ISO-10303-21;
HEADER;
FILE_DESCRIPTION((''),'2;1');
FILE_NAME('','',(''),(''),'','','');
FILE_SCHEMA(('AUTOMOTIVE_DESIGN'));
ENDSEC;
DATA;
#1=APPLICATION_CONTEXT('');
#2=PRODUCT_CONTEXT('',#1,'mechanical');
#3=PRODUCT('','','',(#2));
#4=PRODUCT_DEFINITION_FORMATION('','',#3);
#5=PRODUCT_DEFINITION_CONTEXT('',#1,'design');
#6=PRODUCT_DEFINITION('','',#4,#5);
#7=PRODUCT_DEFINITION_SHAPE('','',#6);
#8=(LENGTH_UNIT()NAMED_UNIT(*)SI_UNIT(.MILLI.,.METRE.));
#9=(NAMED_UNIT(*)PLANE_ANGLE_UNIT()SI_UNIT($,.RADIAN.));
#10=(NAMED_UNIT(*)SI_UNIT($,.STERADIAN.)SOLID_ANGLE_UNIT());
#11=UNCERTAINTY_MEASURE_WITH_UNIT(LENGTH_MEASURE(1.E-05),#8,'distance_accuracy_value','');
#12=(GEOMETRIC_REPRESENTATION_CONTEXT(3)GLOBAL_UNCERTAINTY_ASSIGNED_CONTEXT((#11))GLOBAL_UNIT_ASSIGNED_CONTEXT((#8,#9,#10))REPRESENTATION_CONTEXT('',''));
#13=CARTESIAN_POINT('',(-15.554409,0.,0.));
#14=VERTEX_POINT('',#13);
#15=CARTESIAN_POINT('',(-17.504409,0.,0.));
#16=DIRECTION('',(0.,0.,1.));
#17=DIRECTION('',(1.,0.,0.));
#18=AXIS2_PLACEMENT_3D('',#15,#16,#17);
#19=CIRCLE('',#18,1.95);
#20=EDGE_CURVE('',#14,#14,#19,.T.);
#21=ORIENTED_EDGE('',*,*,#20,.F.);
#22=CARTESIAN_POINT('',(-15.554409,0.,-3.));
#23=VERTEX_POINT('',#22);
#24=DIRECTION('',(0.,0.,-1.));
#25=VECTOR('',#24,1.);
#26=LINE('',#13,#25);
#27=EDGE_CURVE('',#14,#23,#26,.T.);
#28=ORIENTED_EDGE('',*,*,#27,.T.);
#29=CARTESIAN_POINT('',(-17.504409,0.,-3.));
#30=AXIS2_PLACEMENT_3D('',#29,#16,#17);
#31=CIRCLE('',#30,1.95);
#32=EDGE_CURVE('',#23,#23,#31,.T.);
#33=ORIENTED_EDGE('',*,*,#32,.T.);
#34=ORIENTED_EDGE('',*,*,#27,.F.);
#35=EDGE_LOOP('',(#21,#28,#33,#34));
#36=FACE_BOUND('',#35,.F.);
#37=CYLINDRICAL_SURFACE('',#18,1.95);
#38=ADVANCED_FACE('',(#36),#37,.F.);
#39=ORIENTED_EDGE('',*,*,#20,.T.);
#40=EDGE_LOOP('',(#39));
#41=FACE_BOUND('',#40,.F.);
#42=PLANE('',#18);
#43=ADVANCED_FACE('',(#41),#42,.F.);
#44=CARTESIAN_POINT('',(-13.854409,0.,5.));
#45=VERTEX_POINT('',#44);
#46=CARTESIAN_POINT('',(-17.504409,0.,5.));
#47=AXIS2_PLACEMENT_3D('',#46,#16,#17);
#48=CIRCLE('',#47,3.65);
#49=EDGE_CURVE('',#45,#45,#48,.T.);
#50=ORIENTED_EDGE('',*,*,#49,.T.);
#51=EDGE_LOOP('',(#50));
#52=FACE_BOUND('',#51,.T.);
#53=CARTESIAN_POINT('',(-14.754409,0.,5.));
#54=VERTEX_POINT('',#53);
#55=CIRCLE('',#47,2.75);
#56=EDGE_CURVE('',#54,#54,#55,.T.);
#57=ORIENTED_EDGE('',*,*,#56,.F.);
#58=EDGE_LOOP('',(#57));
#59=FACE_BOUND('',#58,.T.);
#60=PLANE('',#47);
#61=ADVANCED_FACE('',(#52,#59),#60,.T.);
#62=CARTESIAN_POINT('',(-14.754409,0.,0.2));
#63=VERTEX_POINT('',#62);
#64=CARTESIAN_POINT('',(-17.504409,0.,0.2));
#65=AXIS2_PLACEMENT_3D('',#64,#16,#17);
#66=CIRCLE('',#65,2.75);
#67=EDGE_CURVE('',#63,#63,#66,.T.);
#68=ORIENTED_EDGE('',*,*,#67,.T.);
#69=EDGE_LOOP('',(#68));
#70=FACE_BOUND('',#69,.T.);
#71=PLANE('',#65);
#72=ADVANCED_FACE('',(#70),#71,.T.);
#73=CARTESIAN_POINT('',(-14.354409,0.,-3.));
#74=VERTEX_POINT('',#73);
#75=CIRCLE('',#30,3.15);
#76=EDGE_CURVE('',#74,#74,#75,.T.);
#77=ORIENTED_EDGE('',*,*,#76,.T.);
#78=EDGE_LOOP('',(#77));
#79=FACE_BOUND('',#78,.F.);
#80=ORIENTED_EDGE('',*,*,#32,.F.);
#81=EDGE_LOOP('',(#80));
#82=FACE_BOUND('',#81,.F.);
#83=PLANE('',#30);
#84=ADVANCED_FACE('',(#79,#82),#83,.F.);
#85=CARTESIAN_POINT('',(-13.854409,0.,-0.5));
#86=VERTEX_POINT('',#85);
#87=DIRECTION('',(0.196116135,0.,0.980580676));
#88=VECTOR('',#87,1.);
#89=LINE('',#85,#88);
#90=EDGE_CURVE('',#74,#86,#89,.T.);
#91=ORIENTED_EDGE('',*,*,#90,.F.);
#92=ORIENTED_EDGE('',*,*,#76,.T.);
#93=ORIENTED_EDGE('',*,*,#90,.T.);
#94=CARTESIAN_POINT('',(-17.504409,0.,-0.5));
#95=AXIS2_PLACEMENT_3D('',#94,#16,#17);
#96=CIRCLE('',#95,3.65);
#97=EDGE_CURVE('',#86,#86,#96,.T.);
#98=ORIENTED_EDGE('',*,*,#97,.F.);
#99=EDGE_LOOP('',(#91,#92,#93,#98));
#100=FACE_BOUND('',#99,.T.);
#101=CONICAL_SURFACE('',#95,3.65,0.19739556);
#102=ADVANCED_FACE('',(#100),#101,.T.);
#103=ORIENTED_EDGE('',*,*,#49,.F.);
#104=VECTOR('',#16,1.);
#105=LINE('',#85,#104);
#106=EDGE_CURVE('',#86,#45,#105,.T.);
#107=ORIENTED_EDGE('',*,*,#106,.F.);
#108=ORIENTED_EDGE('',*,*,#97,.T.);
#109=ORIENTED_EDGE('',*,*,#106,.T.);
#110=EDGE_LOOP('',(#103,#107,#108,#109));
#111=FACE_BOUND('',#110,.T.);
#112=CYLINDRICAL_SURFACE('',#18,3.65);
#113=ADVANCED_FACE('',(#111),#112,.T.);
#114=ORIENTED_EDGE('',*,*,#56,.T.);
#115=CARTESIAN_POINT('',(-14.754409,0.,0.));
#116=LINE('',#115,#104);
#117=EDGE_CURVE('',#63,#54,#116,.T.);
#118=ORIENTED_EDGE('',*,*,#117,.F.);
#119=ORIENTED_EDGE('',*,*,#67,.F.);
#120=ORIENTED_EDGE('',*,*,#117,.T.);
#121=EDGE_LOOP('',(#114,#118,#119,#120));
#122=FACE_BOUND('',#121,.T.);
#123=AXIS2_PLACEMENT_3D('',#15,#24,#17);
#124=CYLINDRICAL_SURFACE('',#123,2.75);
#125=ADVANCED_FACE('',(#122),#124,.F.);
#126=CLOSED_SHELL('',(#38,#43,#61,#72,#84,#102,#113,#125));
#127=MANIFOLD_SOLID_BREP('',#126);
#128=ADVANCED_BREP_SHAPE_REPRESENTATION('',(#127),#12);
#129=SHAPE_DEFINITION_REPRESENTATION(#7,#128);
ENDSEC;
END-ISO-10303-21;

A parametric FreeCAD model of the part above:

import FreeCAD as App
import Part
import Sketcher
Q = App.Units.Quantity


def edges_at(feature, points):
    """Names of the edges that pass closest to the given points."""
    edges = feature.Shape.Edges
    near = lambda p: min(range(len(edges)), key=lambda i: edges[i].distToShape(Part.Vertex(*p))[0])
    return sorted({f"Edge{near(p) + 1}" for p in points})

doc = App.newDocument("Part")
params = doc.addObject("Spreadsheet::Sheet", "Params")
for row, (alias, value) in enumerate([
    ("sketch1_diameter", "7.3 mm"),
    ("sketch1_diameter2", "3.9 mm"),
    ("pad1_length", "3 mm"),
    ("sketch2_diameter", "7.3 mm"),
    ("sketch2_diameter2", "5.5 mm"),
    ("pad2_length", "5 mm"),
    ("chamfer_size", "0.5 mm"),
    ("chamfer_size2", "2.5 mm"),
    ("sketch3_diameter", "5.5 mm"),
    ("pad3_length", "0.2 mm"),
], start=1):
    params.set(f"A{row}", alias)
    params.set(f"B{row}", "=" + value)
    params.setAlias(f"B{row}", alias)

body = doc.addObject("PartDesign::Body", "Body")

# Sketch on XY plane
sketch1 = body.newObject("Sketcher::SketchObject", "Sketch")
sketch1.AttachmentSupport = (doc.getObject("XY_Plane"), [""])
sketch1.MapMode = "FlatFace"
sketch1.addGeometry([
    Part.Circle(App.Vector(-17.504409, 0, 0), App.Vector(0, 0, 1), 3.65),
    Part.Circle(App.Vector(-17.504409, 0, 0), App.Vector(0, 0, 1), 1.95),
], False)
sketch1.addConstraint([
    Sketcher.Constraint("Coincident", 1, 3, 0, 3),
    Sketcher.Constraint("PointOnObject", 0, 3, -1),
    Sketcher.Constraint("Diameter", 0, Q("7.3 mm")),
    Sketcher.Constraint("Diameter", 1, Q("3.9 mm")),
    Sketcher.Constraint("DistanceX", 0, 3, -1, 1, Q("17.504409 mm")),
])
sketch1.setExpression("Constraints[2]", "Params.sketch1_diameter")
sketch1.setExpression("Constraints[3]", "Params.sketch1_diameter2")
pad1 = body.newObject("PartDesign::Pad", "Pad")
pad1.Profile = sketch1
pad1.setExpression("Length", "Params.pad1_length")
pad1.Reversed = True

# Sketch on XY plane
sketch2 = body.newObject("Sketcher::SketchObject", "Sketch001")
sketch2.AttachmentSupport = (doc.getObject("XY_Plane"), [""])
sketch2.MapMode = "FlatFace"
sketch2.addGeometry([
    Part.Circle(App.Vector(-17.504409, 0, 0), App.Vector(0, 0, 1), 3.65),
    Part.Circle(App.Vector(-17.504409, 0, 0), App.Vector(0, 0, 1), 2.75),
], False)
sketch2.addConstraint([
    Sketcher.Constraint("Coincident", 1, 3, 0, 3),
    Sketcher.Constraint("PointOnObject", 0, 3, -1),
    Sketcher.Constraint("Diameter", 0, Q("7.3 mm")),
    Sketcher.Constraint("Diameter", 1, Q("5.5 mm")),
    Sketcher.Constraint("DistanceX", 0, 3, -1, 1, Q("17.504409 mm")),
])
sketch2.setExpression("Constraints[2]", "Params.sketch2_diameter")
sketch2.setExpression("Constraints[3]", "Params.sketch2_diameter2")
pad2 = body.newObject("PartDesign::Pad", "Pad001")
pad2.Profile = sketch2
pad2.setExpression("Length", "Params.pad2_length")
doc.recompute()

chamfer = body.newObject("PartDesign::Chamfer", "Chamfer")
chamfer.Base = (pad2, edges_at(pad2, [(-21.154, 0, -3)]))
chamfer.ChamferType = "Two distances"
chamfer.setExpression("Size", "Params.chamfer_size")
chamfer.setExpression("Size2", "Params.chamfer_size2")

# Sketch on XY plane
sketch3 = body.newObject("Sketcher::SketchObject", "Sketch002")
sketch3.AttachmentSupport = (doc.getObject("XY_Plane"), [""])
sketch3.MapMode = "FlatFace"
sketch3.addGeometry(Part.Circle(App.Vector(-17.504409, 0, 0), App.Vector(0, 0, 1), 2.75), False)
sketch3.addConstraint([
    Sketcher.Constraint("PointOnObject", 0, 3, -1),
    Sketcher.Constraint("Diameter", 0, Q("5.5 mm")),
    Sketcher.Constraint("DistanceX", 0, 3, -1, 1, Q("17.504409 mm")),
])
sketch3.setExpression("Constraints[1]", "Params.sketch3_diameter")
pad3 = body.newObject("PartDesign::Pad", "Pad002")
pad3.Profile = sketch3
pad3.setExpression("Length", "Params.pad3_length")

doc.recompute()
